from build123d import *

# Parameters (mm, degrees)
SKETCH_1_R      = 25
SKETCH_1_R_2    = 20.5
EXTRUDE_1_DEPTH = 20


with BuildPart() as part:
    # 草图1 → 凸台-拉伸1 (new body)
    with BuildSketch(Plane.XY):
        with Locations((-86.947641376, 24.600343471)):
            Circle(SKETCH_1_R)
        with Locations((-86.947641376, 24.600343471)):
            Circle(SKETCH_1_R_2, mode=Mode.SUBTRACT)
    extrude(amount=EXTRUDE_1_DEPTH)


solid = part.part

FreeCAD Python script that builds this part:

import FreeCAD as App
import Part
import Sketcher
from FreeCAD import Vector

doc = App.newDocument("Part")
body = doc.addObject("PartDesign::Body", "Body")

sketch1 = body.newObject("Sketcher::SketchObject", "Sketch")
sketch1.AttachmentSupport = (doc.getObject("XY_Plane"), [""])
sketch1.MapMode = "FlatFace"
sketch1.addGeometry(Part.Circle(Vector(-87, 25, 0), Vector(0, 0, 1), 25), False)
sketch1.addGeometry(Part.Circle(Vector(-87, 25, 0), Vector(0, 0, 1), 20), False)
sketch1.addConstraint(Sketcher.Constraint("Coincident", 1, 3, 0, 3))
sketch1.addConstraint(Sketcher.Constraint("Diameter", 0, 50.0))
sketch1.addConstraint(Sketcher.Constraint("Diameter", 1, 41.0))
sketch1.addConstraint(Sketcher.Constraint("DistanceX", 0, 3, -1, 1, 86.947641))
sketch1.addConstraint(Sketcher.Constraint("DistanceY", -1, 1, 0, 3, 24.600343))
pad1 = body.newObject("PartDesign::Pad", "Pad")
pad1.Profile = sketch1
pad1.Length = 20

doc.recompute()
